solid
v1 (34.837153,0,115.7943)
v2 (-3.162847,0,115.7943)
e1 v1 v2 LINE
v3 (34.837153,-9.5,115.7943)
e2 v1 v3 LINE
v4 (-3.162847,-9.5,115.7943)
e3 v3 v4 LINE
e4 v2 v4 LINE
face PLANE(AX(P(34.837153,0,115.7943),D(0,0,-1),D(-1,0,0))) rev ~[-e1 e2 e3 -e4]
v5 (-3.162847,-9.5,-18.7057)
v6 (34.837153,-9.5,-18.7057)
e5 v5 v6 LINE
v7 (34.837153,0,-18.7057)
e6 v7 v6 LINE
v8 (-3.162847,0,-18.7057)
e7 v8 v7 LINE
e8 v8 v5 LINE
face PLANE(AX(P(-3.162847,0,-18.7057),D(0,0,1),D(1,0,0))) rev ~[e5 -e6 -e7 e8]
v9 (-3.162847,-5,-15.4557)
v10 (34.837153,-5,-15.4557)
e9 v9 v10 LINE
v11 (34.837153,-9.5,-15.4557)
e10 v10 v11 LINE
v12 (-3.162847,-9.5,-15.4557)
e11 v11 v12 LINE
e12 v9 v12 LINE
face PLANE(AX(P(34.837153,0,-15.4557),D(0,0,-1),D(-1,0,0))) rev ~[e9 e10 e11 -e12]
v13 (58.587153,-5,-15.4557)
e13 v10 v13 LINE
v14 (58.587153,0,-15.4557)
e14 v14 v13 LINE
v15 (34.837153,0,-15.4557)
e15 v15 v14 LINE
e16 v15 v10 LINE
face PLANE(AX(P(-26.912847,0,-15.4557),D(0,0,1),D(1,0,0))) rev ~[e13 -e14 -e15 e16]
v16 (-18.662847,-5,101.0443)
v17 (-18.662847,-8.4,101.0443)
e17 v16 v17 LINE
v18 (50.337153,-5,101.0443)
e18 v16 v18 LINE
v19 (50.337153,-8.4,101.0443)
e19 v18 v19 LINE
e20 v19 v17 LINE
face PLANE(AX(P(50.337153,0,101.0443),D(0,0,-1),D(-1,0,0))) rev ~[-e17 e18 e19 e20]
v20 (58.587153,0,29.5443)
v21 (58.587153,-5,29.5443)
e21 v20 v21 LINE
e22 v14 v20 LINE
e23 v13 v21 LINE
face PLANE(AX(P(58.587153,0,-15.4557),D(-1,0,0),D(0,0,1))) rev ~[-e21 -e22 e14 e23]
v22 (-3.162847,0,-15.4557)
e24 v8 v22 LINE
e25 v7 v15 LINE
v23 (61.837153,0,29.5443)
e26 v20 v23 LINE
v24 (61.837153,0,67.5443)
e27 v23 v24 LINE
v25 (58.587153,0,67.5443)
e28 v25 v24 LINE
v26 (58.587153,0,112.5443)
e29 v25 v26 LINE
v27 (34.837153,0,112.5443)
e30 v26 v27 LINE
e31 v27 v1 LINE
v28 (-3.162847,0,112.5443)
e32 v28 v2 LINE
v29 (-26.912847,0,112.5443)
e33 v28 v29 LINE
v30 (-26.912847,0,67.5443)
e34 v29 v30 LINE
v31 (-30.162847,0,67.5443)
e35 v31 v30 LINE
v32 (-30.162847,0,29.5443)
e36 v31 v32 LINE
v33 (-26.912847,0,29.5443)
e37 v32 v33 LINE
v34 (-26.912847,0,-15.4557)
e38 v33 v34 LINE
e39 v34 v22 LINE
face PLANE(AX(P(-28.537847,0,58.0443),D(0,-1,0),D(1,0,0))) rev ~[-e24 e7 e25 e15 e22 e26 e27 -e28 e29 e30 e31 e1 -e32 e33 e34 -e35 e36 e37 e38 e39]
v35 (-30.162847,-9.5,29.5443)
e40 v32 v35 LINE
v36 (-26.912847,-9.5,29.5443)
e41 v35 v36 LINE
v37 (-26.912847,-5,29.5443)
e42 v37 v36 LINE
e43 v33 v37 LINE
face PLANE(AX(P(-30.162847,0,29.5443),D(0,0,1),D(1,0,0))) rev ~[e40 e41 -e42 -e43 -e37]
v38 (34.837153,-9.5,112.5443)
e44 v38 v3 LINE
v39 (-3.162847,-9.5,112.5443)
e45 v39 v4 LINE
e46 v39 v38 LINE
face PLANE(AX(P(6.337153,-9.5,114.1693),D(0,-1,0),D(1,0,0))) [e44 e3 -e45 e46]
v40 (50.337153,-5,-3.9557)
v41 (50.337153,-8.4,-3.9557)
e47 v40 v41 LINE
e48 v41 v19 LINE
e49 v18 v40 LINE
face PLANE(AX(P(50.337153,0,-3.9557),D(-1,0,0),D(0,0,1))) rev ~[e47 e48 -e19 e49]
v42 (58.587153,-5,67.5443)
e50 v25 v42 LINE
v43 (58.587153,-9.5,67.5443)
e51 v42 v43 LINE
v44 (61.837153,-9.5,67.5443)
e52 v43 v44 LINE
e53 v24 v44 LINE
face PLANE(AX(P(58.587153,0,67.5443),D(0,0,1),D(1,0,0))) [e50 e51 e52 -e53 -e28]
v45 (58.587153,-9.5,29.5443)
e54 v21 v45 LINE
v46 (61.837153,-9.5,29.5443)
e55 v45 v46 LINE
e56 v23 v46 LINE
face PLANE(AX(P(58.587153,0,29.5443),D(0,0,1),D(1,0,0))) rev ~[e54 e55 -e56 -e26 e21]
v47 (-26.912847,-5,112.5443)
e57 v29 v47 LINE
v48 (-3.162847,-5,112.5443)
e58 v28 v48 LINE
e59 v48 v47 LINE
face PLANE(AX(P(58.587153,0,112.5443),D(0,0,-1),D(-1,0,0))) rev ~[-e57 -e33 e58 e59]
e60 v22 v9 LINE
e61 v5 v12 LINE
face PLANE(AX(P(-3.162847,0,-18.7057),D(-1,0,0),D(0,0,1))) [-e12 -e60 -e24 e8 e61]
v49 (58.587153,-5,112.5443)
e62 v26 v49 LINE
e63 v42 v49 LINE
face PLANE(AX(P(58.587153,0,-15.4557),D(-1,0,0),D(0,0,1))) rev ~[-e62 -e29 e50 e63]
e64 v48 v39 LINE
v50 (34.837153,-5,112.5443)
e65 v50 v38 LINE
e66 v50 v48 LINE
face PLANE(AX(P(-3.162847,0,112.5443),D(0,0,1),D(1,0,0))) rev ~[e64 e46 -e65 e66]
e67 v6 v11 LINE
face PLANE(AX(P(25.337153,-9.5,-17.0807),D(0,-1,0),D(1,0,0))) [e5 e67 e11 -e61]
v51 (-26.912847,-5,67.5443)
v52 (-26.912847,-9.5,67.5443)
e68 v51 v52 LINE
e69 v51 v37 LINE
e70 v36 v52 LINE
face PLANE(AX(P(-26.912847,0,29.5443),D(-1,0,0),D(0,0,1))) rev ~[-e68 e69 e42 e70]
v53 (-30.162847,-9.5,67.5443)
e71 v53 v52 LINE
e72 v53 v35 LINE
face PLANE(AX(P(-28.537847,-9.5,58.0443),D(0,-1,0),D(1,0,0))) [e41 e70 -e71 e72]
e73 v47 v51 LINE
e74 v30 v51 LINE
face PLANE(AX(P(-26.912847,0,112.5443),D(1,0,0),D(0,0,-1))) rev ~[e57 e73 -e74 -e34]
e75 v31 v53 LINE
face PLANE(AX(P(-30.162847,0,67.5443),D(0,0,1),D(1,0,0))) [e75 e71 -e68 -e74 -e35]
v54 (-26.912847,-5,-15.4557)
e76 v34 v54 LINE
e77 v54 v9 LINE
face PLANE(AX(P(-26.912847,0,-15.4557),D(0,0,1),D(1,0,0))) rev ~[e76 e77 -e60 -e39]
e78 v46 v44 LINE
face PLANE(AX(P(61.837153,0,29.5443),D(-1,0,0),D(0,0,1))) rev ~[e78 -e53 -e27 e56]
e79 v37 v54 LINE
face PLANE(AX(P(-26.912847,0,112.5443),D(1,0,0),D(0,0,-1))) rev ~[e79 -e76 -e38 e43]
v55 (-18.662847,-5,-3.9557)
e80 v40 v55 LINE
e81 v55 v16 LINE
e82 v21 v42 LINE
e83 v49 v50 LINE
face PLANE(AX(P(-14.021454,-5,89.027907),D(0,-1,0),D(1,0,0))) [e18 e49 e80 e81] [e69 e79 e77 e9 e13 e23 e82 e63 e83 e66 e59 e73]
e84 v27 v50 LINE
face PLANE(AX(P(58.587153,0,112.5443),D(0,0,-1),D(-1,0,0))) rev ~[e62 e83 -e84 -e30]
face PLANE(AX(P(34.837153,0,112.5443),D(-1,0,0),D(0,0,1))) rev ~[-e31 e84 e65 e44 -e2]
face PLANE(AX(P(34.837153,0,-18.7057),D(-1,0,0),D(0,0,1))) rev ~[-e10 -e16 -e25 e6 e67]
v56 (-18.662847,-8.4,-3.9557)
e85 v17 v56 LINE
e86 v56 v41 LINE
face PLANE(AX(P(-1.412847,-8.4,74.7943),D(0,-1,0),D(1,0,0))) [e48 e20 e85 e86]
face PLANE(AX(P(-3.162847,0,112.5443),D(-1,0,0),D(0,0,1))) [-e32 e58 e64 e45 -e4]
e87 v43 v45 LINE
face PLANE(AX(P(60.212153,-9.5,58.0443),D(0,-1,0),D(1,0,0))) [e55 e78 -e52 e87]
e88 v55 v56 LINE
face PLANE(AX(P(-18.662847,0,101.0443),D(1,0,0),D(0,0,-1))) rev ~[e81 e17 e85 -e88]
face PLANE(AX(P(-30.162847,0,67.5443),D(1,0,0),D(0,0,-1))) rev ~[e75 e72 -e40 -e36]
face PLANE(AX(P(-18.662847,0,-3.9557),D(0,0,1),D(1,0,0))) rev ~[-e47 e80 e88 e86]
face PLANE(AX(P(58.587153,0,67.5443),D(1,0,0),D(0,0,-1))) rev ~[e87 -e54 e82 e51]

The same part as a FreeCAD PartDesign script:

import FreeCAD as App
import Part
import Sketcher

doc = App.newDocument("Part")
body = doc.addObject("PartDesign::Body", "Body")

# Sketch on XZ plane
sketch1 = doc.addObject("Sketcher::SketchObject", "Sketch")
body.addObject(sketch1)
sketch1.AttachmentSupport = (doc.XZ_Plane, [""])
sketch1.MapMode = "FlatFace"
sketch1.addGeometry([
    Part.LineSegment(App.Vector(-27, 113, 0), App.Vector(-27, -15, 0)),  # 0
    Part.LineSegment(App.Vector(-27, -15, 0), App.Vector(59, -15, 0)),  # 1
    Part.LineSegment(App.Vector(59, -15, 0), App.Vector(59, 113, 0)),  # 2
    Part.LineSegment(App.Vector(59, 113, 0), App.Vector(-27, 113, 0)),  # 3
    Part.LineSegment(App.Vector(-19, 101, 0), App.Vector(50, 101, 0)),  # 4
    Part.LineSegment(App.Vector(50, 101, 0), App.Vector(50, -4, 0)),  # 5
    Part.LineSegment(App.Vector(50, -4, 0), App.Vector(-19, -4, 0)),  # 6
    Part.LineSegment(App.Vector(-19, -4, 0), App.Vector(-19, 101, 0)),  # 7
], False)
sketch1.addConstraint([
    Sketcher.Constraint("Coincident", 0, 2, 1, 1),
    Sketcher.Constraint("Coincident", 1, 2, 2, 1),
    Sketcher.Constraint("Coincident", 2, 2, 3, 1),
    Sketcher.Constraint("Coincident", 3, 2, 0, 1),
    Sketcher.Constraint("Coincident", 4, 2, 5, 1),
    Sketcher.Constraint("Coincident", 5, 2, 6, 1),
    Sketcher.Constraint("Coincident", 6, 2, 7, 1),
    Sketcher.Constraint("Coincident", 7, 2, 4, 1),
    Sketcher.Constraint("Vertical", 0),
    Sketcher.Constraint("Horizontal", 1),
    Sketcher.Constraint("Vertical", 2),
    Sketcher.Constraint("Horizontal", 3),
    Sketcher.Constraint("Horizontal", 4),
    Sketcher.Constraint("Vertical", 5),
    Sketcher.Constraint("Horizontal", 6),
    Sketcher.Constraint("Vertical", 7),
    Sketcher.Constraint("DistanceX", 4, 1, 4, 2, 69.0),
    Sketcher.Constraint("DistanceY", 0, 2, 0, 1, 128.0),
    Sketcher.Constraint("DistanceY", 5, 2, 5, 1, 105.0),
    Sketcher.Constraint("DistanceX", 1, 1, 1, 2, 85.5),
    Sketcher.Constraint("DistanceY", 4, 2, 2, 2, 11.5),
    Sketcher.Constraint("DistanceX", 4, 2, 2, 2, 8.25),
    Sketcher.Constraint("DistanceY", 0, 2, -1, 1, 15.4557),
    Sketcher.Constraint("DistanceX", 0, 2, -1, 1, 26.912847),
])
pad1 = doc.addObject("PartDesign::Pad", "Pad")
body.addObject(pad1)
pad1.Profile = sketch1
pad1.Length = 5

# Sketch on XZ plane
sketch2 = doc.addObject("Sketcher::SketchObject", "Sketch001")
body.addObject(sketch2)
sketch2.AttachmentSupport = (doc.XZ_Plane, [""])
sketch2.MapMode = "FlatFace"
sketch2.addGeometry([
    Part.LineSegment(App.Vector(-19, 101, 0), App.Vector(-19, -4, 0)),
    Part.LineSegment(App.Vector(-19, -4, 0), App.Vector(50, -4, 0)),
    Part.LineSegment(App.Vector(50, -4, 0), App.Vector(50, 101, 0)),
    Part.LineSegment(App.Vector(50, 101, 0), App.Vector(-19, 101, 0)),
], False)
sketch2.addConstraint([
    Sketcher.Constraint("Coincident", 0, 2, 1, 1),
    Sketcher.Constraint("Coincident", 1, 2, 2, 1),
    Sketcher.Constraint("Coincident", 2, 2, 3, 1),
    Sketcher.Constraint("Coincident", 3, 2, 0, 1),
    Sketcher.Constraint("Vertical", 0),
    Sketcher.Constraint("Horizontal", 1),
    Sketcher.Constraint("Vertical", 2),
    Sketcher.Constraint("Horizontal", 3),
    Sketcher.Constraint("DistanceX", 1, 1, 1, 2, 69.0),
    Sketcher.Constraint("DistanceY", 0, 2, 0, 1, 105.0),
    Sketcher.Constraint("DistanceY", 0, 2, -1, 1, 3.9557),
    Sketcher.Constraint("DistanceX", 0, 2, -1, 1, 18.662847),
])
pad2 = doc.addObject("PartDesign::Pad", "Pad001")
body.addObject(pad2)
pad2.Profile = sketch2
pad2.Length = 8.4

# Sketch on XZ plane
sketch3 = doc.addObject("Sketcher::SketchObject", "Sketch002")
body.addObject(sketch3)
sketch3.AttachmentSupport = (doc.XZ_Plane, [""])
sketch3.MapMode = "FlatFace"
sketch3.addGeometry([
    Part.LineSegment(App.Vector(-30.2, 67.5, 0), App.Vector(-30.2, 29.5, 0)),  # 0
    Part.LineSegment(App.Vector(-30.2, 29.5, 0), App.Vector(-26.9, 29.5, 0)),  # 1
    Part.LineSegment(App.Vector(-26.9, 29.5, 0), App.Vector(-26.9, 67.5, 0)),  # 2
    Part.LineSegment(App.Vector(-26.9, 67.5, 0), App.Vector(-30.2, 67.5, 0)),  # 3
    Part.LineSegment(App.Vector(-3.2, 115.8, 0), App.Vector(-3.2, 112.5, 0)),  # 4
    Part.LineSegment(App.Vector(-3.2, 112.5, 0), App.Vector(34.8, 112.5, 0)),  # 5
    Part.LineSegment(App.Vector(34.8, 112.5, 0), App.Vector(34.8, 115.8, 0)),  # 6
    Part.LineSegment(App.Vector(34.8, 115.8, 0), App.Vector(-3.2, 115.8, 0)),  # 7
    Part.LineSegment(App.Vector(58.6, 67.5, 0), App.Vector(58.6, 29.5, 0)),  # 8
    Part.LineSegment(App.Vector(58.6, 29.5, 0), App.Vector(61.8, 29.5, 0)),  # 9
    Part.LineSegment(App.Vector(61.8, 29.5, 0), App.Vector(61.8, 67.5, 0)),  # 10
    Part.LineSegment(App.Vector(61.8, 67.5, 0), App.Vector(58.6, 67.5, 0)),  # 11
    Part.LineSegment(App.Vector(34.8, -18.7, 0), App.Vector(34.8, -15.5, 0)),  # 12
    Part.LineSegment(App.Vector(34.8, -15.5, 0), App.Vector(-3.2, -15.5, 0)),  # 13
    Part.LineSegment(App.Vector(-3.2, -15.5, 0), App.Vector(-3.2, -18.7, 0)),  # 14
    Part.LineSegment(App.Vector(-3.2, -18.7, 0), App.Vector(34.8, -18.7, 0)),  # 15
], False)
sketch3.addConstraint([
    Sketcher.Constraint("Coincident", 0, 2, 1, 1),
    Sketcher.Constraint("Coincident", 1, 2, 2, 1),
    Sketcher.Constraint("Coincident", 2, 2, 3, 1),
    Sketcher.Constraint("Coincident", 3, 2, 0, 1),
    Sketcher.Constraint("Coincident", 4, 2, 5, 1),
    Sketcher.Constraint("Coincident", 5, 2, 6, 1),
    Sketcher.Constraint("Coincident", 6, 2, 7, 1),
    Sketcher.Constraint("Coincident", 7, 2, 4, 1),
    Sketcher.Constraint("Coincident", 8, 2, 9, 1),
    Sketcher.Constraint("Coincident", 9, 2, 10, 1),
    Sketcher.Constraint("Coincident", 10, 2, 11, 1),
    Sketcher.Constraint("Coincident", 11, 2, 8, 1),
    Sketcher.Constraint("Coincident", 12, 2, 13, 1),
    Sketcher.Constraint("Coincident", 13, 2, 14, 1),
    Sketcher.Constraint("Coincident", 14, 2, 15, 1),
    Sketcher.Constraint("Coincident", 15, 2, 12, 1),
    Sketcher.Constraint("Vertical", 0),
    Sketcher.Constraint("Horizontal", 1),
    Sketcher.Constraint("Vertical", 2),
    Sketcher.Constraint("Horizontal", 3),
    Sketcher.Constraint("Vertical", 4),
    Sketcher.Constraint("Horizontal", 5),
    Sketcher.Constraint("Vertical", 6),
    Sketcher.Constraint("Horizontal", 7),
    Sketcher.Constraint("Vertical", 8),
    Sketcher.Constraint("Horizontal", 9),
    Sketcher.Constraint("Vertical", 10),
    Sketcher.Constraint("Horizontal", 11),
    Sketcher.Constraint("Vertical", 12),
    Sketcher.Constraint("Horizontal", 13),
    Sketcher.Constraint("Vertical", 14),
    Sketcher.Constraint("Horizontal", 15),
    Sketcher.Constraint("Horizontal", 1, 2, 8, 2),
    Sketcher.Constraint("Horizontal", 3, 2, 10, 2),
    Sketcher.Constraint("Vertical", 6, 2, 12, 2),
    Sketcher.Constraint("Vertical", 7, 2, 13, 2),
    Sketcher.Constraint("Equal", 3, 9),
    Sketcher.Constraint("Equal", 15, 0),
    Sketcher.Constraint("Equal", 11, 4),
    Sketcher.Constraint("Equal", 6, 12),
    Sketcher.Constraint("DistanceX", 5, 1, 5, 2, 38.0),
    Sketcher.Constraint("DistanceY", 2, 2, 4, 2, 45.0),
    Sketcher.Constraint("DistanceX", 3, 2, 4, 2, 27.0),
    Sketcher.Constraint("DistanceX", 5, 2, 9, 2, 27.0),
    Sketcher.Constraint("DistanceY", 12, 2, 8, 2, 45.0),
    Sketcher.Constraint("DistanceX", 1, 1, 1, 2, 3.25),
    Sketcher.Constraint("DistanceY", -1, 1, 0, 2, 29.5443),
    Sketcher.Constraint("DistanceX", 0, 2, -1, 1, 30.162847),
])
pad3 = doc.addObject("PartDesign::Pad", "Pad002")
body.addObject(pad3)
pad3.Profile = sketch3
pad3.Length = 9.5

doc.recompute()
